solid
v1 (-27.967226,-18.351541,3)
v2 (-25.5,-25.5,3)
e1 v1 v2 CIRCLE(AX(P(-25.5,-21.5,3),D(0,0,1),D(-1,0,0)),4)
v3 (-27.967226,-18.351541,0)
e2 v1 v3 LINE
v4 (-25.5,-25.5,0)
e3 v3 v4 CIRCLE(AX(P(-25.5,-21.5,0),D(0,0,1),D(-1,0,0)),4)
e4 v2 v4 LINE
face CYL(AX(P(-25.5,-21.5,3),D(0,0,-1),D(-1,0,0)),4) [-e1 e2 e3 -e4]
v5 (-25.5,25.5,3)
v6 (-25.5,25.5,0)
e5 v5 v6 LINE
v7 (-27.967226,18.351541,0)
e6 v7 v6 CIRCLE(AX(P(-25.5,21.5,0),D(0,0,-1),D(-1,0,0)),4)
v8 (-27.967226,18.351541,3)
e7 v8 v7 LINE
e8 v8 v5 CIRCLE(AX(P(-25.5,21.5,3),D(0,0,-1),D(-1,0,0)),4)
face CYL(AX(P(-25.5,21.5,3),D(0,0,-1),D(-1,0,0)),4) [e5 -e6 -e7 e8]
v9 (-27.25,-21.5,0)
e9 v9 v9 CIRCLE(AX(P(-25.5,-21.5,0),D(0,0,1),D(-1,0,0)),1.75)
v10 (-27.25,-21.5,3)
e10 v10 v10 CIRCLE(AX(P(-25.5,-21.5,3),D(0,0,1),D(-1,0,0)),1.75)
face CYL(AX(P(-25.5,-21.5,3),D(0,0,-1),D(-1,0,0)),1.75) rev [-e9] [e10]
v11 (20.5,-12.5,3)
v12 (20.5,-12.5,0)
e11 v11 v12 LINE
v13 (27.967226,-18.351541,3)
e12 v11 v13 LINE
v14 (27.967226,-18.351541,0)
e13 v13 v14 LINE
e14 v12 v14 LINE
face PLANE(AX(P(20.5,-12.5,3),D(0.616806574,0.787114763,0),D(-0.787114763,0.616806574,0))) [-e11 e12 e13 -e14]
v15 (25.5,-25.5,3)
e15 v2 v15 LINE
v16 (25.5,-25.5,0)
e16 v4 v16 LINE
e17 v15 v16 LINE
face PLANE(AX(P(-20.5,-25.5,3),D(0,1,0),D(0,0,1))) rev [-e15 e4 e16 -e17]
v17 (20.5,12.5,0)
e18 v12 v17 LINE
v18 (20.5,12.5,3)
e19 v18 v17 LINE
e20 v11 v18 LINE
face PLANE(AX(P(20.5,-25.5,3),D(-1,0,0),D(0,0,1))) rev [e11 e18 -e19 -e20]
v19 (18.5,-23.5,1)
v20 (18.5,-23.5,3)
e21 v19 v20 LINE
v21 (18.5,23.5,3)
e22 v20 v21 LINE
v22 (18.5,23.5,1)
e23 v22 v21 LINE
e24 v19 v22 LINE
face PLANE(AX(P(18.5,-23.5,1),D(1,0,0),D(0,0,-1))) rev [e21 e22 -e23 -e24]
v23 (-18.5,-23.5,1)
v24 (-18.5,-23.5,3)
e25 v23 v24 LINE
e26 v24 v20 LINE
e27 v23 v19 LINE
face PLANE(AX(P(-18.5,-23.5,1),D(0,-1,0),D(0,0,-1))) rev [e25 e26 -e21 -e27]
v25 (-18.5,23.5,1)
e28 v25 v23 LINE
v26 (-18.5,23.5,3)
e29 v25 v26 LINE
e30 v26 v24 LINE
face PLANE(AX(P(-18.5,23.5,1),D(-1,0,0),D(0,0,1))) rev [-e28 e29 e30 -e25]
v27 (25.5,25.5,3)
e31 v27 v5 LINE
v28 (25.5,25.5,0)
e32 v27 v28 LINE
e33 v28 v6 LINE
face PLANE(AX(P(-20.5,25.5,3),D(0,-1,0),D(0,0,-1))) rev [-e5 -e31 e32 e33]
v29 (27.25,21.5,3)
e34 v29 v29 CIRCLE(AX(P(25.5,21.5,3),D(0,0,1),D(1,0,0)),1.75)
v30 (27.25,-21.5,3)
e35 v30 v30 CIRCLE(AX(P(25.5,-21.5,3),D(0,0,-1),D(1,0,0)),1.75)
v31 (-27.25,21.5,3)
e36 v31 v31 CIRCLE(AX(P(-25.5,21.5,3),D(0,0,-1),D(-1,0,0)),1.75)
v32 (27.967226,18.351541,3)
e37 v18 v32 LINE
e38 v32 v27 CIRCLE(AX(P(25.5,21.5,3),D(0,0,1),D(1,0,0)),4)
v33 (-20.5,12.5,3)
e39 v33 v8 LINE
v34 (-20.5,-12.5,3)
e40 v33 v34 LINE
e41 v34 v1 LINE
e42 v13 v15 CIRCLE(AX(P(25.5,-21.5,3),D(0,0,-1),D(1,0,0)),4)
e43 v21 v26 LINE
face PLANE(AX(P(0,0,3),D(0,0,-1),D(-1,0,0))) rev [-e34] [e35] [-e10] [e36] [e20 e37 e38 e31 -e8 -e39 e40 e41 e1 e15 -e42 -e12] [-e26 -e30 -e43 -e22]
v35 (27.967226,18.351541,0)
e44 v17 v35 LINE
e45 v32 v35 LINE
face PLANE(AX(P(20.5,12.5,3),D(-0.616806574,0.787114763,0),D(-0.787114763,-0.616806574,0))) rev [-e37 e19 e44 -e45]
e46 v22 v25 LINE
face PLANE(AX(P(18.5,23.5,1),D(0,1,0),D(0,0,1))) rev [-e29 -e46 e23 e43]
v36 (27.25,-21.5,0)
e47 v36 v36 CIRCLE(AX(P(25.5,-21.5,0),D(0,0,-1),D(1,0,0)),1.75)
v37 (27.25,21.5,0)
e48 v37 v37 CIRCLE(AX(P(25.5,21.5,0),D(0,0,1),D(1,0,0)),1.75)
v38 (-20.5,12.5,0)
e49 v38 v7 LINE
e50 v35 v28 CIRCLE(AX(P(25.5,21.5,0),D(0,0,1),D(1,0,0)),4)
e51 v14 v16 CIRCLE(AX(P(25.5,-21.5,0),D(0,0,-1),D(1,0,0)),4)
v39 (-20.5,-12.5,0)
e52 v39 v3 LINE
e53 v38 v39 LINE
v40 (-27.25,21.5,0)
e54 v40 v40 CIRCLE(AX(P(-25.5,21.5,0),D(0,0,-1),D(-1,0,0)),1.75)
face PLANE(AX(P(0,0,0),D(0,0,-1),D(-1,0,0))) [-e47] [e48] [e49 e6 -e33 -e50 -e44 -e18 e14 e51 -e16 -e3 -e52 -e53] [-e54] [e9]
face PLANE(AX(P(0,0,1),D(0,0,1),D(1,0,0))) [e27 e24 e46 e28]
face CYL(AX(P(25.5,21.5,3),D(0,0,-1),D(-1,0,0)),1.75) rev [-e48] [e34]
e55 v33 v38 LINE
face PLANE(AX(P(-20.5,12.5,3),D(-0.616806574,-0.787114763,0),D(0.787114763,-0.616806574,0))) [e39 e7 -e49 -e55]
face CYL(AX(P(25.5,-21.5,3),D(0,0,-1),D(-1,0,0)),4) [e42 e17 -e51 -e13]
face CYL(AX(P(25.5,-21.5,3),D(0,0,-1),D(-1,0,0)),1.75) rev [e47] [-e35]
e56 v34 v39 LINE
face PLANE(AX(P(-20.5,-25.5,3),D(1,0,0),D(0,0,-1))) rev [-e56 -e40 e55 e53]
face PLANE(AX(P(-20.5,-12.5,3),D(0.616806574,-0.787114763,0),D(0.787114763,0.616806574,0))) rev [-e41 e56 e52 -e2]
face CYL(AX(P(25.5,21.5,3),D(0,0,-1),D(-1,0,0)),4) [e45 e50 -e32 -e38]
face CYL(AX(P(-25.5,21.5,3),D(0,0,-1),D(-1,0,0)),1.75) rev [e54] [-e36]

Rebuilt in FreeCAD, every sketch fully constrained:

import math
import FreeCAD as App
import Part
import Sketcher
Q = App.Units.Quantity

doc = App.newDocument("Part")
body = doc.addObject("PartDesign::Body", "Body")

# Sketch on XY plane
sketch1 = body.newObject("Sketcher::SketchObject", "Sketch")
sketch1.AttachmentSupport = (doc.getObject("XY_Plane"), [""])
sketch1.MapMode = "FlatFace"
sketch1.addGeometry(Part.LineSegment(App.Vector(-20.5, 25.5, 0), App.Vector(-20.5, -25.5, 0)), False)
sketch1.addGeometry(Part.LineSegment(App.Vector(-20.5, -25.5, 0), App.Vector(20.5, -25.5, 0)), False)
sketch1.addGeometry(Part.LineSegment(App.Vector(20.5, -25.5, 0), App.Vector(20.5, 25.5, 0)), False)
sketch1.addGeometry(Part.LineSegment(App.Vector(20.5, 25.5, 0), App.Vector(-20.5, 25.5, 0)), False)
sketch1.addConstraint(Sketcher.Constraint("Coincident", 0, 2, 1, 1))
sketch1.addConstraint(Sketcher.Constraint("Coincident", 1, 2, 2, 1))
sketch1.addConstraint(Sketcher.Constraint("Coincident", 2, 2, 3, 1))
sketch1.addConstraint(Sketcher.Constraint("Coincident", 3, 2, 0, 1))
sketch1.addConstraint(Sketcher.Constraint("Vertical", 0))
sketch1.addConstraint(Sketcher.Constraint("Horizontal", 1))
sketch1.addConstraint(Sketcher.Constraint("Vertical", 2))
sketch1.addConstraint(Sketcher.Constraint("Horizontal", 3))
sketch1.addConstraint(Sketcher.Constraint("Symmetric", 0, 2, 2, 2, -1, 1))
sketch1.addConstraint(Sketcher.Constraint("DistanceX", 1, 1, 1, 2, Q("41 mm")))
sketch1.addConstraint(Sketcher.Constraint("DistanceY", 0, 2, 0, 1, Q("51 mm")))
pad1 = body.newObject("PartDesign::Pad", "Pad")
pad1.Profile = sketch1
pad1.Length = 3

# Sketch on XY plane
sketch2 = body.newObject("Sketcher::SketchObject", "Sketch001")
sketch2.AttachmentSupport = (doc.getObject("XY_Plane"), [""])
sketch2.MapMode = "FlatFace"
sketch2.AttachmentOffset = App.Placement(App.Vector(0, 0, 3), App.Rotation())
sketch2.addGeometry(Part.LineSegment(App.Vector(-18.5, 23.5, 0), App.Vector(-18.5, -23.5, 0)), False)
sketch2.addGeometry(Part.LineSegment(App.Vector(-18.5, -23.5, 0), App.Vector(18.5, -23.5, 0)), False)
sketch2.addGeometry(Part.LineSegment(App.Vector(18.5, -23.5, 0), App.Vector(18.5, 23.5, 0)), False)
sketch2.addGeometry(Part.LineSegment(App.Vector(18.5, 23.5, 0), App.Vector(-18.5, 23.5, 0)), False)
sketch2.addConstraint(Sketcher.Constraint("Coincident", 0, 2, 1, 1))
sketch2.addConstraint(Sketcher.Constraint("Coincident", 1, 2, 2, 1))
sketch2.addConstraint(Sketcher.Constraint("Coincident", 2, 2, 3, 1))
sketch2.addConstraint(Sketcher.Constraint("Coincident", 3, 2, 0, 1))
sketch2.addConstraint(Sketcher.Constraint("Vertical", 0))
sketch2.addConstraint(Sketcher.Constraint("Horizontal", 1))
sketch2.addConstraint(Sketcher.Constraint("Vertical", 2))
sketch2.addConstraint(Sketcher.Constraint("Horizontal", 3))
sketch2.addConstraint(Sketcher.Constraint("Symmetric", 0, 2, 2, 2, -1, 1))
sketch2.addConstraint(Sketcher.Constraint("DistanceX", 1, 1, 1, 2, Q("37 mm")))
sketch2.addConstraint(Sketcher.Constraint("DistanceY", 0, 2, 0, 1, Q("47 mm")))
pocket1 = body.newObject("PartDesign::Pocket", "Pocket")
pocket1.Profile = sketch2
pocket1.Length = 2

# Sketch on XY plane
sketch3 = body.newObject("Sketcher::SketchObject", "Sketch002")
sketch3.AttachmentSupport = (doc.getObject("XY_Plane"), [""])
sketch3.MapMode = "FlatFace"
sketch3.addGeometry(Part.LineSegment(App.Vector(25.5, 25.5, 0), App.Vector(20.5, 25.5, 0)), False)
sketch3.addGeometry(Part.LineSegment(App.Vector(20.5, 25.5, 0), App.Vector(20.5, 12.5, 0)), False)
sketch3.addGeometry(Part.LineSegment(App.Vector(20.5, 12.5, 0), App.Vector(27.967226, 18.351541, 0)), False)
sketch3.addGeometry(Part.ArcOfCircle(Part.Circle(App.Vector(25.5, 21.5, 0), App.Vector(0, 0, 1), 4), math.radians(-51.916693), math.radians(90)), False)
sketch3.addGeometry(Part.Circle(App.Vector(25.5, 21.5, 0), App.Vector(0, 0, 1), 1.75), False)
sketch3.addConstraint(Sketcher.Constraint("Coincident", 0, 2, 1, 1))
sketch3.addConstraint(Sketcher.Constraint("Coincident", 1, 2, 2, 1))
sketch3.addConstraint(Sketcher.Constraint("Tangent", 2, 2, 3, 1))
sketch3.addConstraint(Sketcher.Constraint("Tangent", 3, 2, 0, 1))
sketch3.addConstraint(Sketcher.Constraint("Horizontal", 0))
sketch3.addConstraint(Sketcher.Constraint("Vertical", 1))
sketch3.addConstraint(Sketcher.Constraint("Coincident", 4, 3, 3, 3))
sketch3.addConstraint(Sketcher.Constraint("Radius", 3, Q("4 mm")))
sketch3.addConstraint(Sketcher.Constraint("Diameter", 4, Q("3.5 mm")))
sketch3.addConstraint(Sketcher.Constraint("DistanceX", 0, 2, 0, 1, Q("5 mm")))
sketch3.addConstraint(Sketcher.Constraint("DistanceY", 1, 2, 1, 1, Q("13 mm")))
sketch3.addConstraint(Sketcher.Constraint("DistanceX", -1, 1, 3, 3, Q("25.5 mm")))
sketch3.addConstraint(Sketcher.Constraint("DistanceY", -1, 1, 3, 3, Q("21.5 mm")))
pad2 = body.newObject("PartDesign::Pad", "Pad001")
pad2.Profile = sketch3
pad2.Length = 3
doc.recompute()

mirrored = body.newObject("PartDesign::Mirrored", "Mirrored")
mirrored.Originals = [pad2]
mirrored.MirrorPlane = (doc.getObject("YZ_Plane"), [""])
body.Tip = mirrored
doc.recompute()

mirrored2 = body.newObject("PartDesign::Mirrored", "Mirrored001")
mirrored2.Originals = [pad2]
mirrored2.MirrorPlane = (doc.getObject("XZ_Plane"), [""])
body.Tip = mirrored2

# Sketch on XY plane
sketch4 = body.newObject("Sketcher::SketchObject", "Sketch003")
sketch4.AttachmentSupport = (doc.getObject("XY_Plane"), [""])
sketch4.MapMode = "FlatFace"
sketch4.addGeometry(Part.LineSegment(App.Vector(-25.5, -25.5, 0), App.Vector(-20.5, -25.5, 0)), False)
sketch4.addGeometry(Part.LineSegment(App.Vector(-20.5, -25.5, 0), App.Vector(-20.5, -12.5, 0)), False)
sketch4.addGeometry(Part.LineSegment(App.Vector(-20.5, -12.5, 0), App.Vector(-27.967226, -18.351541, 0)), False)
sketch4.addGeometry(Part.ArcOfCircle(Part.Circle(App.Vector(-25.5, -21.5, 0), App.Vector(0, 0, 1), 4), math.radians(128.083307), math.radians(270)), False)
sketch4.addGeometry(Part.Circle(App.Vector(-25.5, -21.5, 0), App.Vector(0, 0, 1), 1.75), False)
sketch4.addConstraint(Sketcher.Constraint("Coincident", 0, 2, 1, 1))
sketch4.addConstraint(Sketcher.Constraint("Coincident", 1, 2, 2, 1))
sketch4.addConstraint(Sketcher.Constraint("Tangent", 2, 2, 3, 1))
sketch4.addConstraint(Sketcher.Constraint("Tangent", 3, 2, 0, 1))
sketch4.addConstraint(Sketcher.Constraint("Horizontal", 0))
sketch4.addConstraint(Sketcher.Constraint("Vertical", 1))
sketch4.addConstraint(Sketcher.Constraint("Coincident", 4, 3, 3, 3))
sketch4.addConstraint(Sketcher.Constraint("Radius", 3, Q("4 mm")))
sketch4.addConstraint(Sketcher.Constraint("Diameter", 4, Q("3.5 mm")))
sketch4.addConstraint(Sketcher.Constraint("DistanceX", 0, 1, 0, 2, Q("5 mm")))
sketch4.addConstraint(Sketcher.Constraint("DistanceY", 1, 1, 1, 2, Q("13 mm")))
sketch4.addConstraint(Sketcher.Constraint("DistanceX", 3, 3, -1, 1, Q("25.5 mm")))
sketch4.addConstraint(Sketcher.Constraint("DistanceY", 3, 3, -1, 1, Q("21.5 mm")))
pad3 = body.newObject("PartDesign::Pad", "Pad002")
pad3.Profile = sketch4
pad3.Length = 3

doc.recompute()
